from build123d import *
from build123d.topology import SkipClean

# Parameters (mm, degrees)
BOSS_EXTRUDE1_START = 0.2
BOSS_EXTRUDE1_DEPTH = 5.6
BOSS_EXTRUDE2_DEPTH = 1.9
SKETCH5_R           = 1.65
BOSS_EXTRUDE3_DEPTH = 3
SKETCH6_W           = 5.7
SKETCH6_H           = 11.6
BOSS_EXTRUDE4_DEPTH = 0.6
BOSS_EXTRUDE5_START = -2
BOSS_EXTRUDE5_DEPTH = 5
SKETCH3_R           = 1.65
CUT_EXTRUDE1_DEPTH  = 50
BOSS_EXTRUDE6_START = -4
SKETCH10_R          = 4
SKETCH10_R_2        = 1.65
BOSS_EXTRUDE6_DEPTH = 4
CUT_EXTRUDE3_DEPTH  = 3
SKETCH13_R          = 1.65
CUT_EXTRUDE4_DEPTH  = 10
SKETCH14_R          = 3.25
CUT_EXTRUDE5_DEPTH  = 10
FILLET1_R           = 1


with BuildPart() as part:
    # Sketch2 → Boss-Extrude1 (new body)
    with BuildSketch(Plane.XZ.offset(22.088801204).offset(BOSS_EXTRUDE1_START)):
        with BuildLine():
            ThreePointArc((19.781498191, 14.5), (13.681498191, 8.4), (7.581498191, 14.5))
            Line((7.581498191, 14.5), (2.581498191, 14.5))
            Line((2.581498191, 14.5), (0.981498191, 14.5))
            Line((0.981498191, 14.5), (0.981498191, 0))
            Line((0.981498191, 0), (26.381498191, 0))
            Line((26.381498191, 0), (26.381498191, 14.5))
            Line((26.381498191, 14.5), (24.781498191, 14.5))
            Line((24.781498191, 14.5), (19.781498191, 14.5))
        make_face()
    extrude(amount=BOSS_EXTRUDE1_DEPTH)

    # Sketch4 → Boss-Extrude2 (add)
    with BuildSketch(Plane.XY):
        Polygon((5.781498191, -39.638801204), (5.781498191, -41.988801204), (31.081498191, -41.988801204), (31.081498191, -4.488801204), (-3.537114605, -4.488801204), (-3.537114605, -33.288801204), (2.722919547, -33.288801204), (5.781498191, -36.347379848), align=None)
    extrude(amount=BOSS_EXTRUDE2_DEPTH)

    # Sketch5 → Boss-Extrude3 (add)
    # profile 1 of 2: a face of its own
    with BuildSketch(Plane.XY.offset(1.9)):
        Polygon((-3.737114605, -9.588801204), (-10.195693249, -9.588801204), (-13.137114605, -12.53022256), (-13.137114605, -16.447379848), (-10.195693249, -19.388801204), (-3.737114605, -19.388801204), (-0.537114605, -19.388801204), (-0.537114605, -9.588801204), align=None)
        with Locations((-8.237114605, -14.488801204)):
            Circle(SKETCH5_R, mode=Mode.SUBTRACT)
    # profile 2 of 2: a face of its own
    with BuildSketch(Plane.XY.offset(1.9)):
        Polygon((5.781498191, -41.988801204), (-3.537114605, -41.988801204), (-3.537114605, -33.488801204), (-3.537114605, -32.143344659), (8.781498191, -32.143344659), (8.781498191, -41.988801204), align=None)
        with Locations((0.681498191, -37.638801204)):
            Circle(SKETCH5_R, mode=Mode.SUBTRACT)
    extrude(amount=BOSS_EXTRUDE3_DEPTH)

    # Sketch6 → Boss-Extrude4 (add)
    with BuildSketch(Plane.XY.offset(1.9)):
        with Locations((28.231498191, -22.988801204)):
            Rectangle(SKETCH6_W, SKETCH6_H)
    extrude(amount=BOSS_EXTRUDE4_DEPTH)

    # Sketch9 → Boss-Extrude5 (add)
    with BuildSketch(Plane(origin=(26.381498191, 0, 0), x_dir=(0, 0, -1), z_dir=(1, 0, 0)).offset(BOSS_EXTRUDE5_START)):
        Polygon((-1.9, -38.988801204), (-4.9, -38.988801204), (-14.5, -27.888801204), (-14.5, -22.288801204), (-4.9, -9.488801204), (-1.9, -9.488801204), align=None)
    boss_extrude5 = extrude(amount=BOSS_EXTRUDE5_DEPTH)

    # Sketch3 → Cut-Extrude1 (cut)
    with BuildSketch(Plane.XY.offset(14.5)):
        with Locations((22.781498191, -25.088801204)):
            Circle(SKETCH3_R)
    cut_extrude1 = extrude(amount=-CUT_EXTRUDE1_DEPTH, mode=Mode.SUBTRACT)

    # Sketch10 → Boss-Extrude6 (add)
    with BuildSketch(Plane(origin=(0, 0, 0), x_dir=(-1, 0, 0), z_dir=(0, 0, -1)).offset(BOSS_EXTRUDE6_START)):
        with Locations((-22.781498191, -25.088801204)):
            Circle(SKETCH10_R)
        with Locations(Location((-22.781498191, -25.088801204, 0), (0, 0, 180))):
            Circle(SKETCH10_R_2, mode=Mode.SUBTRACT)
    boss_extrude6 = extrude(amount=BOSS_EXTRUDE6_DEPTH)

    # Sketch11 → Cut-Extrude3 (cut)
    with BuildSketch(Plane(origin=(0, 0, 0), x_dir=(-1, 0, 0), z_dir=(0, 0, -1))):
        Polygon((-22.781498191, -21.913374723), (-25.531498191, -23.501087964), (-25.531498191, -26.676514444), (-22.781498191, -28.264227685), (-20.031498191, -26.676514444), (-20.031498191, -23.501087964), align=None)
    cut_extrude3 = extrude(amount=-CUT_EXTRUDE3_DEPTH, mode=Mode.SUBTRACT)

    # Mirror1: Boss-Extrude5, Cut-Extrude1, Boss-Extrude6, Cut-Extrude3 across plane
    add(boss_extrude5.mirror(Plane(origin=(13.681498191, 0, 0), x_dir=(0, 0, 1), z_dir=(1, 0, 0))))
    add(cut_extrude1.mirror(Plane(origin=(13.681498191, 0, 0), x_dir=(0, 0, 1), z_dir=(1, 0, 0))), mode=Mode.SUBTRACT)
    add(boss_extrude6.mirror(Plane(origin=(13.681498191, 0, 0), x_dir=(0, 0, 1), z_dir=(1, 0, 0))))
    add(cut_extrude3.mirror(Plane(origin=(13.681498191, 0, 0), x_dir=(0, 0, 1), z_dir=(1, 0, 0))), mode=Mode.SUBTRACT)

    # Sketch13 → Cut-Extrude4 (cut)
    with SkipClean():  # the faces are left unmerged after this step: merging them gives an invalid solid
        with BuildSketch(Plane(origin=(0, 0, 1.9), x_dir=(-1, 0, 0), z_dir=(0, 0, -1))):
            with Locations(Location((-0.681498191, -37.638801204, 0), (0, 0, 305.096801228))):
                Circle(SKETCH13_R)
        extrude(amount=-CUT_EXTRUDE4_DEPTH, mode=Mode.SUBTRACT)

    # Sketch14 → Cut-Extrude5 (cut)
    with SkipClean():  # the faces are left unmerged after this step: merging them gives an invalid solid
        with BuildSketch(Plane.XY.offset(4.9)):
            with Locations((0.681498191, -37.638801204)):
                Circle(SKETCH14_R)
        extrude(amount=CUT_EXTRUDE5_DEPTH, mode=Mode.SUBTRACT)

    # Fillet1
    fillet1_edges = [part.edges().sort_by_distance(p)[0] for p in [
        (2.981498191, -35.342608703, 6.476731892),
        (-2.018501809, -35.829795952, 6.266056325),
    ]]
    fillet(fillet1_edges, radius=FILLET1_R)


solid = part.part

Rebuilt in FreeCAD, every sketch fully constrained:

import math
import FreeCAD as App
import Part
import Sketcher
Q = App.Units.Quantity


def edges_at(feature, points):
    """Names of the edges that pass closest to the given points."""
    edges = feature.Shape.Edges
    near = lambda p: min(range(len(edges)), key=lambda i: edges[i].distToShape(Part.Vertex(*p))[0])
    return sorted({f"Edge{near(p) + 1}" for p in points})

doc = App.newDocument("Part")
body = doc.addObject("PartDesign::Body", "Body")

sketch1 = body.newObject("Sketcher::SketchObject", "Sketch")
sketch1.AttachmentSupport = (doc.getObject("XZ_Plane"), [""])
sketch1.MapMode = "FlatFace"
sketch1.AttachmentOffset = App.Placement(App.Vector(0, 0, 22.288801), App.Rotation())
sketch1.addGeometry(Part.ArcOfCircle(Part.Circle(App.Vector(13.681498, 14.5, 0), App.Vector(0, 0, 1), 6.1), math.radians(180), math.radians(360)), False)
sketch1.addGeometry(Part.LineSegment(App.Vector(7.581498, 14.5, 0), App.Vector(0.981498, 14.5, 0)), False)
sketch1.addGeometry(Part.LineSegment(App.Vector(0.981498, 14.5, 0), App.Vector(0.981498, 0, 0)), False)
sketch1.addGeometry(Part.LineSegment(App.Vector(0.981498, 0, 0), App.Vector(26.381498, 0, 0)), False)
sketch1.addGeometry(Part.LineSegment(App.Vector(26.381498, 0, 0), App.Vector(26.381498, 14.5, 0)), False)
sketch1.addGeometry(Part.LineSegment(App.Vector(26.381498, 14.5, 0), App.Vector(19.781498, 14.5, 0)), False)
sketch1.addConstraint(Sketcher.Constraint("Coincident", 0, 1, 1, 1))
sketch1.addConstraint(Sketcher.Constraint("Coincident", 1, 2, 2, 1))
sketch1.addConstraint(Sketcher.Constraint("Coincident", 2, 2, 3, 1))
sketch1.addConstraint(Sketcher.Constraint("Coincident", 3, 2, 4, 1))
sketch1.addConstraint(Sketcher.Constraint("Coincident", 4, 2, 5, 1))
sketch1.addConstraint(Sketcher.Constraint("Coincident", 5, 2, 0, 2))
sketch1.addConstraint(Sketcher.Constraint("Horizontal", 1))
sketch1.addConstraint(Sketcher.Constraint("Vertical", 2))
sketch1.addConstraint(Sketcher.Constraint("Horizontal", 3))
sketch1.addConstraint(Sketcher.Constraint("Vertical", 4))
sketch1.addConstraint(Sketcher.Constraint("Horizontal", 5))
sketch1.addConstraint(Sketcher.Constraint("PointOnObject", 2, 2, -1))
sketch1.addConstraint(Sketcher.Constraint("Horizontal", 1, 2, 4, 2))
sketch1.addConstraint(Sketcher.Constraint("Equal", 1, 5))
sketch1.addConstraint(Sketcher.Constraint("Radius", 0, Q("6.1 mm")))
sketch1.addConstraint(Sketcher.Constraint("DistanceX", 1, 2, 1, 1, Q("6.6 mm")))
sketch1.addConstraint(Sketcher.Constraint("DistanceY", 2, 2, 2, 1, Q("14.5 mm")))
sketch1.addConstraint(Sketcher.Constraint("DistanceY", -1, 1, 0, 3, Q("14.5 mm")))
sketch1.addConstraint(Sketcher.Constraint("DistanceX", -1, 1, 0, 3, Q("13.681498 mm")))
pad1 = body.newObject("PartDesign::Pad", "Pad")
pad1.Profile = sketch1
pad1.Length = 5.6

sketch2 = body.newObject("Sketcher::SketchObject", "Sketch001")
sketch2.AttachmentSupport = (doc.getObject("XY_Plane"), [""])
sketch2.MapMode = "FlatFace"
sketch2.addGeometry(Part.LineSegment(App.Vector(5.781498, -41.988801, 0), App.Vector(31.081498, -41.988801, 0)), False)
sketch2.addGeometry(Part.LineSegment(App.Vector(31.081498, -41.988801, 0), App.Vector(31.081498, -4.488801, 0)), False)
sketch2.addGeometry(Part.LineSegment(App.Vector(31.081498, -4.488801, 0), App.Vector(-3.537115, -4.488801, 0)), False)
sketch2.addGeometry(Part.LineSegment(App.Vector(-3.537115, -4.488801, 0), App.Vector(-3.537115, -33.288801, 0)), False)
sketch2.addGeometry(Part.LineSegment(App.Vector(-3.537115, -33.288801, 0), App.Vector(2.72292, -33.288801, 0)), False)
sketch2.addGeometry(Part.LineSegment(App.Vector(2.72292, -33.288801, 0), App.Vector(5.781498, -36.34738, 0)), False)
sketch2.addGeometry(Part.LineSegment(App.Vector(5.781498, -36.34738, 0), App.Vector(5.781498, -41.988801, 0)), False)
sketch2.addConstraint(Sketcher.Constraint("Coincident", 0, 2, 1, 1))
sketch2.addConstraint(Sketcher.Constraint("Coincident", 1, 2, 2, 1))
sketch2.addConstraint(Sketcher.Constraint("Coincident", 2, 2, 3, 1))
sketch2.addConstraint(Sketcher.Constraint("Coincident", 3, 2, 4, 1))
sketch2.addConstraint(Sketcher.Constraint("Coincident", 4, 2, 5, 1))
sketch2.addConstraint(Sketcher.Constraint("Coincident", 5, 2, 6, 1))
sketch2.addConstraint(Sketcher.Constraint("Coincident", 6, 2, 0, 1))
sketch2.addConstraint(Sketcher.Constraint("Horizontal", 0))
sketch2.addConstraint(Sketcher.Constraint("Vertical", 1))
sketch2.addConstraint(Sketcher.Constraint("Horizontal", 2))
sketch2.addConstraint(Sketcher.Constraint("Vertical", 3))
sketch2.addConstraint(Sketcher.Constraint("Horizontal", 4))
sketch2.addConstraint(Sketcher.Constraint("Vertical", 6))
sketch2.addConstraint(Sketcher.Constraint("Angle", 5, Q("-45 deg")))
sketch2.addConstraint(Sketcher.Constraint("DistanceX", 0, 1, 0, 2, Q("25.3 mm")))
sketch2.addConstraint(Sketcher.Constraint("DistanceY", 1, 1, 1, 2, Q("37.5 mm")))
sketch2.addConstraint(Sketcher.Constraint("DistanceY", 3, 2, 3, 1, Q("28.8 mm")))
sketch2.addConstraint(Sketcher.Constraint("DistanceY", 6, 2, 6, 1, Q("5.641421 mm")))
sketch2.addConstraint(Sketcher.Constraint("DistanceX", -1, 1, 0, 2, Q("31.081498 mm")))
sketch2.addConstraint(Sketcher.Constraint("DistanceY", 0, 2, -1, 1, Q("41.988801 mm")))
sketch2.addConstraint(Sketcher.Constraint("DistanceX", 2, 2, 2, 1, Q("34.618613 mm")))
pad2 = body.newObject("PartDesign::Pad", "Pad001")
pad2.Profile = sketch2
pad2.Length = 1.9

sketch3 = body.newObject("Sketcher::SketchObject", "Sketch002")
sketch3.AttachmentSupport = (doc.getObject("XY_Plane"), [""])
sketch3.MapMode = "FlatFace"
sketch3.AttachmentOffset = App.Placement(App.Vector(0, 0, 1.9), App.Rotation())
sketch3.addGeometry(Part.LineSegment(App.Vector(-10.195693, -9.588801, 0), App.Vector(-13.137115, -12.530223, 0)), False)
sketch3.addGeometry(Part.LineSegment(App.Vector(-13.137115, -12.530223, 0), App.Vector(-13.137115, -16.44738, 0)), False)
sketch3.addGeometry(Part.LineSegment(App.Vector(-13.137115, -16.44738, 0), App.Vector(-10.195693, -19.388801, 0)), False)
sketch3.addGeometry(Part.LineSegment(App.Vector(-10.195693, -19.388801, 0), App.Vector(-0.537115, -19.388801, 0)), False)
sketch3.addGeometry(Part.LineSegment(App.Vector(-0.537115, -19.388801, 0), App.Vector(-0.537115, -9.588801, 0)), False)
sketch3.addGeometry(Part.LineSegment(App.Vector(-0.537115, -9.588801, 0), App.Vector(-10.195693, -9.588801, 0)), False)
sketch3.addGeometry(Part.Circle(App.Vector(-8.237115, -14.488801, 0), App.Vector(0, 0, 1), 1.65), False)
sketch3.addGeometry(Part.LineSegment(App.Vector(-3.537115, -41.988801, 0), App.Vector(8.781498, -41.988801, 0)), False)
sketch3.addGeometry(Part.LineSegment(App.Vector(8.781498, -41.988801, 0), App.Vector(8.781498, -32.143345, 0)), False)
sketch3.addGeometry(Part.LineSegment(App.Vector(8.781498, -32.143345, 0), App.Vector(-3.537115, -32.143345, 0)), False)
sketch3.addGeometry(Part.LineSegment(App.Vector(-3.537115, -32.143345, 0), App.Vector(-3.537115, -41.988801, 0)), False)
sketch3.addGeometry(Part.Circle(App.Vector(0.681498, -37.638801, 0), App.Vector(0, 0, 1), 1.65), False)
sketch3.addConstraint(Sketcher.Constraint("Coincident", 0, 2, 1, 1))
sketch3.addConstraint(Sketcher.Constraint("Coincident", 1, 2, 2, 1))
sketch3.addConstraint(Sketcher.Constraint("Coincident", 2, 2, 3, 1))
sketch3.addConstraint(Sketcher.Constraint("Coincident", 3, 2, 4, 1))
sketch3.addConstraint(Sketcher.Constraint("Coincident", 4, 2, 5, 1))
sketch3.addConstraint(Sketcher.Constraint("Coincident", 5, 2, 0, 1))
sketch3.addConstraint(Sketcher.Constraint("Coincident", 7, 2, 8, 1))
sketch3.addConstraint(Sketcher.Constraint("Coincident", 8, 2, 9, 1))
sketch3.addConstraint(Sketcher.Constraint("Coincident", 9, 2, 10, 1))
sketch3.addConstraint(Sketcher.Constraint("Coincident", 10, 2, 7, 1))
sketch3.addConstraint(Sketcher.Constraint("Vertical", 1))
sketch3.addConstraint(Sketcher.Constraint("Horizontal", 3))
sketch3.addConstraint(Sketcher.Constraint("Vertical", 4))
sketch3.addConstraint(Sketcher.Constraint("Horizontal", 5))
sketch3.addConstraint(Sketcher.Constraint("Horizontal", 7))
sketch3.addConstraint(Sketcher.Constraint("Vertical", 8))
sketch3.addConstraint(Sketcher.Constraint("Horizontal", 9))
sketch3.addConstraint(Sketcher.Constraint("Vertical", 10))
sketch3.addConstraint(Sketcher.Constraint("Equal", 6, 11))
sketch3.addConstraint(Sketcher.Constraint("Perpendicular", 0, 2))
sketch3.addConstraint(Sketcher.Constraint("Vertical", 2, 2, 5, 2))
sketch3.addConstraint(Sketcher.Constraint("Equal", 0, 2))
sketch3.addConstraint(Sketcher.Constraint("Diameter", 6, Q("3.3 mm")))
sketch3.addConstraint(Sketcher.Constraint("DistanceY", 4, 1, 4, 2, Q("9.8 mm")))
sketch3.addConstraint(Sketcher.Constraint("DistanceX", 9, 2, 3, 2, Q("3 mm")))
sketch3.addConstraint(Sketcher.Constraint("DistanceX", 0, 2, 6, 3, Q("4.9 mm")))
sketch3.addConstraint(Sketcher.Constraint("DistanceY", 2, 2, 6, 3, Q("4.9 mm")))
sketch3.addConstraint(Sketcher.Constraint("DistanceX", 6, 3, 3, 2, Q("7.7 mm")))
sketch3.addConstraint(Sketcher.Constraint("DistanceX", 11, 3, 7, 2, Q("8.1 mm")))
sketch3.addConstraint(Sketcher.Constraint("DistanceY", 7, 2, 3, 2, Q("22.6 mm")))
sketch3.addConstraint(Sketcher.Constraint("DistanceY", 11, 3, 6, 3, Q("23.15 mm")))
sketch3.addConstraint(Sketcher.Constraint("DistanceX", 3, 1, 3, 2, Q("9.658579 mm")))
sketch3.addConstraint(Sketcher.Constraint("DistanceY", 6, 3, -1, 1, Q("14.488801 mm")))
sketch3.addConstraint(Sketcher.Constraint("DistanceX", -1, 1, 11, 3, Q("0.681498 mm")))
sketch3.addConstraint(Sketcher.Constraint("DistanceX", 7, 1, 7, 2, Q("12.318613 mm")))
sketch3.addConstraint(Sketcher.Constraint("DistanceY", 8, 1, 8, 2, Q("9.845457 mm")))
pad3 = body.newObject("PartDesign::Pad", "Pad002")
pad3.Profile = sketch3
pad3.Length = 3

sketch4 = body.newObject("Sketcher::SketchObject", "Sketch003")
sketch4.AttachmentSupport = (doc.getObject("XY_Plane"), [""])
sketch4.MapMode = "FlatFace"
sketch4.AttachmentOffset = App.Placement(App.Vector(0, 0, 1.9), App.Rotation())
sketch4.addGeometry(Part.LineSegment(App.Vector(25.381498, -17.188801, 0), App.Vector(25.381498, -28.788801, 0)), False)
sketch4.addGeometry(Part.LineSegment(App.Vector(25.381498, -28.788801, 0), App.Vector(31.081498, -28.788801, 0)), False)
sketch4.addGeometry(Part.LineSegment(App.Vector(31.081498, -28.788801, 0), App.Vector(31.081498, -17.188801, 0)), False)
sketch4.addGeometry(Part.LineSegment(App.Vector(31.081498, -17.188801, 0), App.Vector(25.381498, -17.188801, 0)), False)
sketch4.addConstraint(Sketcher.Constraint("Coincident", 0, 2, 1, 1))
sketch4.addConstraint(Sketcher.Constraint("Coincident", 1, 2, 2, 1))
sketch4.addConstraint(Sketcher.Constraint("Coincident", 2, 2, 3, 1))
sketch4.addConstraint(Sketcher.Constraint("Coincident", 3, 2, 0, 1))
sketch4.addConstraint(Sketcher.Constraint("Vertical", 0))
sketch4.addConstraint(Sketcher.Constraint("Horizontal", 1))
sketch4.addConstraint(Sketcher.Constraint("Vertical", 2))
sketch4.addConstraint(Sketcher.Constraint("Horizontal", 3))
sketch4.addConstraint(Sketcher.Constraint("DistanceX", 1, 1, 1, 2, Q("5.7 mm")))
sketch4.addConstraint(Sketcher.Constraint("DistanceY", 0, 2, 0, 1, Q("11.6 mm")))
sketch4.addConstraint(Sketcher.Constraint("DistanceX", -1, 1, 0, 2, Q("25.381498 mm")))
sketch4.addConstraint(Sketcher.Constraint("DistanceY", 0, 2, -1, 1, Q("28.788801 mm")))
pad4 = body.newObject("PartDesign::Pad", "Pad003")
pad4.Profile = sketch4
pad4.Length = 0.6

sketch5 = body.newObject("Sketcher::SketchObject", "Sketch004")
sketch5.AttachmentSupport = (doc.getObject("YZ_Plane"), [""])
sketch5.MapMode = "FlatFace"
sketch5.AttachmentOffset = App.Placement(App.Vector(0, 0, 24.381498), App.Rotation())
sketch5.addGeometry(Part.LineSegment(App.Vector(-38.988801, 4.9, 0), App.Vector(-38.988801, 1.9, 0)), False)
sketch5.addGeometry(Part.LineSegment(App.Vector(-38.988801, 1.9, 0), App.Vector(-9.488801, 1.9, 0)), False)
sketch5.addGeometry(Part.LineSegment(App.Vector(-9.488801, 1.9, 0), App.Vector(-9.488801, 4.9, 0)), False)
sketch5.addGeometry(Part.LineSegment(App.Vector(-9.488801, 4.9, 0), App.Vector(-22.288801, 14.5, 0)), False)
sketch5.addGeometry(Part.LineSegment(App.Vector(-22.288801, 14.5, 0), App.Vector(-27.888801, 14.5, 0)), False)
sketch5.addGeometry(Part.LineSegment(App.Vector(-27.888801, 14.5, 0), App.Vector(-38.988801, 4.9, 0)), False)
sketch5.addConstraint(Sketcher.Constraint("Coincident", 0, 2, 1, 1))
sketch5.addConstraint(Sketcher.Constraint("Coincident", 1, 2, 2, 1))
sketch5.addConstraint(Sketcher.Constraint("Coincident", 2, 2, 3, 1))
sketch5.addConstraint(Sketcher.Constraint("Coincident", 3, 2, 4, 1))
sketch5.addConstraint(Sketcher.Constraint("Coincident", 4, 2, 5, 1))
sketch5.addConstraint(Sketcher.Constraint("Coincident", 5, 2, 0, 1))
sketch5.addConstraint(Sketcher.Constraint("Vertical", 0))
sketch5.addConstraint(Sketcher.Constraint("Horizontal", 1))
sketch5.addConstraint(Sketcher.Constraint("Vertical", 2))
sketch5.addConstraint(Sketcher.Constraint("Horizontal", 4))
sketch5.addConstraint(Sketcher.Constraint("Horizontal", 2, 2, 5, 2))
sketch5.addConstraint(Sketcher.Constraint("DistanceY", 0, 2, 0, 1, Q("3 mm")))
sketch5.addConstraint(Sketcher.Constraint("Distance", 3, Q("16 mm")))
sketch5.addConstraint(Sketcher.Constraint("DistanceX", 1, 1, 1, 2, Q("29.5 mm")))
sketch5.addConstraint(Sketcher.Constraint("DistanceX", 4, 2, 4, 1, Q("5.6 mm")))
sketch5.addConstraint(Sketcher.Constraint("DistanceY", -1, 1, 0, 2, Q("1.9 mm")))
sketch5.addConstraint(Sketcher.Constraint("DistanceY", -1, 1, 3, 2, Q("14.5 mm")))
sketch5.addConstraint(Sketcher.Constraint("DistanceX", 0, 2, -1, 1, Q("38.988801 mm")))
pad5 = body.newObject("PartDesign::Pad", "Pad004")
pad5.Profile = sketch5
pad5.Length = 5

sketch6 = body.newObject("Sketcher::SketchObject", "Sketch005")
sketch6.AttachmentSupport = (doc.getObject("XY_Plane"), [""])
sketch6.MapMode = "FlatFace"
sketch6.AttachmentOffset = App.Placement(App.Vector(0, 0, 14.5), App.Rotation())
sketch6.addGeometry(Part.Circle(App.Vector(22.781498, -25.088801, 0), App.Vector(0, 0, 1), 1.65), False)
sketch6.addConstraint(Sketcher.Constraint("Diameter", 0, Q("3.3 mm")))
sketch6.addConstraint(Sketcher.Constraint("DistanceX", -1, 1, 0, 3, Q("22.781498 mm")))
sketch6.addConstraint(Sketcher.Constraint("DistanceY", 0, 3, -1, 1, Q("25.088801 mm")))
pocket1 = body.newObject("PartDesign::Pocket", "Pocket")
pocket1.Profile = sketch6
pocket1.Length = 50

sketch7 = body.newObject("Sketcher::SketchObject", "Sketch006")
sketch7.AttachmentSupport = (doc.getObject("XY_Plane"), [""])
sketch7.MapMode = "FlatFace"
sketch7.AttachmentOffset = App.Placement(App.Vector(0, 0, 4), App.Rotation())
sketch7.addGeometry(Part.Circle(App.Vector(22.781498, -25.088801, 0), App.Vector(0, 0, 1), 4), False)
sketch7.addGeometry(Part.Circle(App.Vector(22.781498, -25.088801, 0), App.Vector(0, 0, 1), 1.65), False)
sketch7.addConstraint(Sketcher.Constraint("Coincident", 1, 3, 0, 3))
sketch7.addConstraint(Sketcher.Constraint("Diameter", 0, Q("8 mm")))
sketch7.addConstraint(Sketcher.Constraint("Diameter", 1, Q("3.3 mm")))
sketch7.addConstraint(Sketcher.Constraint("DistanceX", -1, 1, 0, 3, Q("22.781498 mm")))
sketch7.addConstraint(Sketcher.Constraint("DistanceY", 0, 3, -1, 1, Q("25.088801 mm")))
pad6 = body.newObject("PartDesign::Pad", "Pad005")
pad6.Profile = sketch7
pad6.Length = 4
pad6.Reversed = True

sketch8 = body.newObject("Sketcher::SketchObject", "Sketch007")
sketch8.AttachmentSupport = (doc.getObject("XY_Plane"), [""])
sketch8.MapMode = "FlatFace"
sketch8.addGeometry(Part.LineSegment(App.Vector(22.781498, -21.913375, 0), App.Vector(25.531498, -23.501088, 0)), False)
sketch8.addGeometry(Part.LineSegment(App.Vector(25.531498, -23.501088, 0), App.Vector(25.531498, -26.676514, 0)), False)
sketch8.addGeometry(Part.LineSegment(App.Vector(25.531498, -26.676514, 0), App.Vector(22.781498, -28.264228, 0)), False)
sketch8.addGeometry(Part.LineSegment(App.Vector(22.781498, -28.264228, 0), App.Vector(20.031498, -26.676514, 0)), False)
sketch8.addGeometry(Part.LineSegment(App.Vector(20.031498, -26.676514, 0), App.Vector(20.031498, -23.501088, 0)), False)
sketch8.addGeometry(Part.LineSegment(App.Vector(20.031498, -23.501088, 0), App.Vector(22.781498, -21.913375, 0)), False)
sketch8.addConstraint(Sketcher.Constraint("Coincident", 0, 2, 1, 1))
sketch8.addConstraint(Sketcher.Constraint("Coincident", 1, 2, 2, 1))
sketch8.addConstraint(Sketcher.Constraint("Coincident", 2, 2, 3, 1))
sketch8.addConstraint(Sketcher.Constraint("Coincident", 3, 2, 4, 1))
sketch8.addConstraint(Sketcher.Constraint("Coincident", 4, 2, 5, 1))
sketch8.addConstraint(Sketcher.Constraint("Coincident", 5, 2, 0, 1))
sketch8.addConstraint(Sketcher.Constraint("Vertical", 1))
sketch8.addConstraint(Sketcher.Constraint("Vertical", 4))
sketch8.addConstraint(Sketcher.Constraint("Parallel", 0, 3))
sketch8.addConstraint(Sketcher.Constraint("Parallel", 2, 5))
sketch8.addConstraint(Sketcher.Constraint("Horizontal", 1, 2, 3, 2))
sketch8.addConstraint(Sketcher.Constraint("Horizontal", 0, 2, 4, 2))
sketch8.addConstraint(Sketcher.Constraint("Vertical", 2, 2, 5, 2))
sketch8.addConstraint(Sketcher.Constraint("Angle", 0, Q("-30 deg")))
sketch8.addConstraint(Sketcher.Constraint("DistanceX", 3, 2, 1, 2, Q("5.5 mm")))
sketch8.addConstraint(Sketcher.Constraint("DistanceX", -1, 1, 0, 2, Q("25.531498 mm")))
sketch8.addConstraint(Sketcher.Constraint("DistanceY", 1, 2, 1, 1, Q("3.175426 mm")))
sketch8.addConstraint(Sketcher.Constraint("DistanceY", 0, 2, -1, 1, Q("23.501088 mm")))
pocket2 = body.newObject("PartDesign::Pocket", "Pocket001")
pocket2.Profile = sketch8
pocket2.Length = 3
pocket2.Reversed = True
doc.recompute()

datumplane = body.newObject("PartDesign::Plane", "DatumPlane")
datumplane.AttachmentSupport = (doc.getObject("YZ_Plane"), [""])
datumplane.MapMode = "FlatFace"
datumplane.AttachmentOffset = App.Placement(App.Vector(0, 0, 13.681498), App.Rotation())
mirrored = body.newObject("PartDesign::Mirrored", "Mirrored")
mirrored.Originals = [pad5, pocket1, pad6, pocket2]
mirrored.MirrorPlane = (datumplane, [""])
body.Tip = mirrored

sketch9 = body.newObject("Sketcher::SketchObject", "Sketch008")
sketch9.AttachmentSupport = (doc.getObject("XY_Plane"), [""])
sketch9.MapMode = "FlatFace"
sketch9.AttachmentOffset = App.Placement(App.Vector(0, 0, 1.9), App.Rotation())
sketch9.addGeometry(Part.Circle(App.Vector(0.681498, -37.638801, 0), App.Vector(0, 0, 1), 1.65), False)
sketch9.addConstraint(Sketcher.Constraint("Diameter", 0, Q("3.3 mm")))
sketch9.addConstraint(Sketcher.Constraint("DistanceX", -1, 1, 0, 3, Q("0.681498 mm")))
sketch9.addConstraint(Sketcher.Constraint("DistanceY", 0, 3, -1, 1, Q("37.638801 mm")))
pocket3 = body.newObject("PartDesign::Pocket", "Pocket002")
pocket3.Profile = sketch9
pocket3.Length = 10
pocket3.Reversed = True

sketch10 = body.newObject("Sketcher::SketchObject", "Sketch009")
sketch10.AttachmentSupport = (doc.getObject("XY_Plane"), [""])
sketch10.MapMode = "FlatFace"
sketch10.AttachmentOffset = App.Placement(App.Vector(0, 0, 4.9), App.Rotation())
sketch10.addGeometry(Part.Circle(App.Vector(0.681498, -37.638801, 0), App.Vector(0, 0, 1), 3.25), False)
sketch10.addConstraint(Sketcher.Constraint("Diameter", 0, Q("6.5 mm")))
sketch10.addConstraint(Sketcher.Constraint("DistanceX", -1, 1, 0, 3, Q("0.681498 mm")))
sketch10.addConstraint(Sketcher.Constraint("DistanceY", 0, 3, -1, 1, Q("37.638801 mm")))
pocket4 = body.newObject("PartDesign::Pocket", "Pocket003")
pocket4.Profile = sketch10
pocket4.Length = 10
pocket4.Reversed = True
doc.recompute()

fillet = body.newObject("PartDesign::Fillet", "Fillet")
fillet.Base = (pocket4, edges_at(pocket4, [(2.981, -35.343, 6.477), (-2.019, -35.83, 6.266)]))
fillet.Radius = 1

doc.recompute()
